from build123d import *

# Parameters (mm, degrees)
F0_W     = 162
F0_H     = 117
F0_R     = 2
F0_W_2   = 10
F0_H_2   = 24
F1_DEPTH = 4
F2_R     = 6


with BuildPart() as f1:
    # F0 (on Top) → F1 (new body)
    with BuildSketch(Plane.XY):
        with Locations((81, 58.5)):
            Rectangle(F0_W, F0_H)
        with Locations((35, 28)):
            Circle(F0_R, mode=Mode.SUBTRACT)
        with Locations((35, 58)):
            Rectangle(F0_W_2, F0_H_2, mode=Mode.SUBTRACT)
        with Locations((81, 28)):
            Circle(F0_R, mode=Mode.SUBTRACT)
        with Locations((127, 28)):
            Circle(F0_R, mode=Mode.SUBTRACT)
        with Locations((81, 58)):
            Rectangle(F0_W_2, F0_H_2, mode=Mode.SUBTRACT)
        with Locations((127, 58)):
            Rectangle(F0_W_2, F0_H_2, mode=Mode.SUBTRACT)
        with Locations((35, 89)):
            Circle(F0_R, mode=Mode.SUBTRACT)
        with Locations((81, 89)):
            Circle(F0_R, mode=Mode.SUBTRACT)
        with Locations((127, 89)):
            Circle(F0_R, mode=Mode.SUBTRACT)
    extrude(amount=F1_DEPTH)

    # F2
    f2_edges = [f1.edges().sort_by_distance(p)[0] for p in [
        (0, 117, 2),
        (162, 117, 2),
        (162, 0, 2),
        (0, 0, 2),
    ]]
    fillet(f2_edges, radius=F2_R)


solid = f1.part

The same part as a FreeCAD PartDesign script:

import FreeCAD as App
import Part
import Sketcher

V = App.Vector
Q = App.Units.Quantity


def edges_at(feature, points):
    """Names of the edges that pass closest to the given points."""
    edges = feature.Shape.Edges
    near = lambda p: min(range(len(edges)), key=lambda i: edges[i].distToShape(Part.Vertex(*p))[0])
    return sorted({f"Edge{near(p) + 1}" for p in points})

doc = App.newDocument("Part")
params = doc.addObject("Spreadsheet::Sheet", "Params")
for row, (alias, value) in enumerate([
    ("sketch1_diameter", "4 mm"),
    ("sketch1_width", "162 mm"),
    ("sketch1_width2", "10 mm"),
    ("sketch1_height", "117 mm"),
    ("sketch1_height2", "24 mm"),
    ("pad1_length", "4 mm"),
    ("fillet_radius", "6 mm"),
], start=1):
    params.set(f"A{row}", alias)
    params.set(f"B{row}", "=" + value)
    params.setAlias(f"B{row}", alias)

body = doc.addObject("PartDesign::Body", "Body")

# Sketch on XY plane
sketch1 = body.newObject("Sketcher::SketchObject", "Sketch")
sketch1.AttachmentSupport = (doc.getObject("XY_Plane"), [""])
sketch1.MapMode = "FlatFace"
sketch1.addGeometry(Part.LineSegment(V(0, 117, 0), V(0, 0, 0)), False)
sketch1.addGeometry(Part.LineSegment(V(0, 0, 0), V(162, 0, 0)), False)
sketch1.addGeometry(Part.LineSegment(V(162, 0, 0), V(162, 117, 0)), False)
sketch1.addGeometry(Part.LineSegment(V(162, 117, 0), V(0, 117, 0)), False)
sketch1.addGeometry(Part.Circle(V(35, 28, 0), V(0, 0, 1), 2), False)
sketch1.addGeometry(Part.LineSegment(V(40, 46, 0), V(30, 46, 0)), False)
sketch1.addGeometry(Part.LineSegment(V(30, 46, 0), V(30, 70, 0)), False)
sketch1.addGeometry(Part.LineSegment(V(30, 70, 0), V(40, 70, 0)), False)
sketch1.addGeometry(Part.LineSegment(V(40, 70, 0), V(40, 46, 0)), False)
sketch1.addGeometry(Part.Circle(V(81, 28, 0), V(0, 0, 1), 2), False)
sketch1.addGeometry(Part.Circle(V(127, 28, 0), V(0, 0, 1), 2), False)
sketch1.addGeometry(Part.LineSegment(V(86, 46, 0), V(76, 46, 0)), False)
sketch1.addGeometry(Part.LineSegment(V(76, 46, 0), V(76, 70, 0)), False)
sketch1.addGeometry(Part.LineSegment(V(76, 70, 0), V(86, 70, 0)), False)
sketch1.addGeometry(Part.LineSegment(V(86, 70, 0), V(86, 46, 0)), False)
sketch1.addGeometry(Part.LineSegment(V(132, 46, 0), V(122, 46, 0)), False)
sketch1.addGeometry(Part.LineSegment(V(122, 46, 0), V(122, 70, 0)), False)
sketch1.addGeometry(Part.LineSegment(V(122, 70, 0), V(132, 70, 0)), False)
sketch1.addGeometry(Part.LineSegment(V(132, 70, 0), V(132, 46, 0)), False)
sketch1.addGeometry(Part.Circle(V(35, 89, 0), V(0, 0, 1), 2), False)
sketch1.addGeometry(Part.Circle(V(81, 89, 0), V(0, 0, 1), 2), False)
sketch1.addGeometry(Part.Circle(V(127, 89, 0), V(0, 0, 1), 2), False)
sketch1.addConstraint(Sketcher.Constraint("Coincident", 0, 2, 1, 1))
sketch1.addConstraint(Sketcher.Constraint("Coincident", 1, 2, 2, 1))
sketch1.addConstraint(Sketcher.Constraint("Coincident", 2, 2, 3, 1))
sketch1.addConstraint(Sketcher.Constraint("Coincident", 3, 2, 0, 1))
sketch1.addConstraint(Sketcher.Constraint("Coincident", 5, 2, 6, 1))
sketch1.addConstraint(Sketcher.Constraint("Coincident", 6, 2, 7, 1))
sketch1.addConstraint(Sketcher.Constraint("Coincident", 7, 2, 8, 1))
sketch1.addConstraint(Sketcher.Constraint("Coincident", 8, 2, 5, 1))
sketch1.addConstraint(Sketcher.Constraint("Coincident", 11, 2, 12, 1))
sketch1.addConstraint(Sketcher.Constraint("Coincident", 12, 2, 13, 1))
sketch1.addConstraint(Sketcher.Constraint("Coincident", 13, 2, 14, 1))
sketch1.addConstraint(Sketcher.Constraint("Coincident", 14, 2, 11, 1))
sketch1.addConstraint(Sketcher.Constraint("Coincident", 15, 2, 16, 1))
sketch1.addConstraint(Sketcher.Constraint("Coincident", 16, 2, 17, 1))
sketch1.addConstraint(Sketcher.Constraint("Coincident", 17, 2, 18, 1))
sketch1.addConstraint(Sketcher.Constraint("Coincident", 18, 2, 15, 1))
sketch1.addConstraint(Sketcher.Constraint("Vertical", 0))
sketch1.addConstraint(Sketcher.Constraint("Horizontal", 1))
sketch1.addConstraint(Sketcher.Constraint("Vertical", 2))
sketch1.addConstraint(Sketcher.Constraint("Horizontal", 3))
sketch1.addConstraint(Sketcher.Constraint("Horizontal", 5))
sketch1.addConstraint(Sketcher.Constraint("Vertical", 6))
sketch1.addConstraint(Sketcher.Constraint("Horizontal", 7))
sketch1.addConstraint(Sketcher.Constraint("Vertical", 8))
sketch1.addConstraint(Sketcher.Constraint("Horizontal", 11))
sketch1.addConstraint(Sketcher.Constraint("Vertical", 12))
sketch1.addConstraint(Sketcher.Constraint("Horizontal", 13))
sketch1.addConstraint(Sketcher.Constraint("Vertical", 14))
sketch1.addConstraint(Sketcher.Constraint("Horizontal", 15))
sketch1.addConstraint(Sketcher.Constraint("Vertical", 16))
sketch1.addConstraint(Sketcher.Constraint("Horizontal", 17))
sketch1.addConstraint(Sketcher.Constraint("Vertical", 18))
sketch1.addConstraint(Sketcher.Constraint("Coincident", 0, 2, -1, 1))
sketch1.addConstraint(Sketcher.Constraint("Equal", 4, 9))
sketch1.addConstraint(Sketcher.Constraint("Equal", 9, 10))
sketch1.addConstraint(Sketcher.Constraint("Equal", 10, 19))
sketch1.addConstraint(Sketcher.Constraint("Equal", 19, 20))
sketch1.addConstraint(Sketcher.Constraint("Equal", 20, 21))
sketch1.addConstraint(Sketcher.Constraint("Horizontal", 4, 3, 9, 3))
sketch1.addConstraint(Sketcher.Constraint("Horizontal", 9, 3, 10, 3))
sketch1.addConstraint(Sketcher.Constraint("Horizontal", 19, 3, 20, 3))
sketch1.addConstraint(Sketcher.Constraint("Horizontal", 20, 3, 21, 3))
sketch1.addConstraint(Sketcher.Constraint("Horizontal", 8, 2, 11, 2))
sketch1.addConstraint(Sketcher.Constraint("Horizontal", 7, 2, 12, 2))
sketch1.addConstraint(Sketcher.Constraint("Horizontal", 14, 2, 15, 2))
sketch1.addConstraint(Sketcher.Constraint("Horizontal", 13, 2, 16, 2))
sketch1.addConstraint(Sketcher.Constraint("Vertical", 4, 3, 19, 3))
sketch1.addConstraint(Sketcher.Constraint("Vertical", 9, 3, 20, 3))
sketch1.addConstraint(Sketcher.Constraint("Vertical", 10, 3, 21, 3))
sketch1.addConstraint(Sketcher.Constraint("Equal", 7, 11))
sketch1.addConstraint(Sketcher.Constraint("Equal", 13, 15))
sketch1.addConstraint(Sketcher.Constraint("Diameter", 4, Q("4 mm")))
sketch1.addConstraint(Sketcher.Constraint("DistanceX", 1, 1, 1, 2, Q("162 mm")))
sketch1.addConstraint(Sketcher.Constraint("DistanceX", 5, 2, 5, 1, Q("10 mm")))
sketch1.addConstraint(Sketcher.Constraint("DistanceY", 0, 2, 0, 1, Q("117 mm")))
sketch1.addConstraint(Sketcher.Constraint("DistanceY", 6, 1, 6, 2, Q("24 mm")))
sketch1.addConstraint(Sketcher.Constraint("DistanceX", -1, 1, 4, 3, Q("35 mm")))
sketch1.addConstraint(Sketcher.Constraint("DistanceY", -1, 1, 4, 3, Q("28 mm")))
sketch1.addConstraint(Sketcher.Constraint("DistanceX", -1, 1, 9, 3, Q("81 mm")))
sketch1.addConstraint(Sketcher.Constraint("DistanceX", -1, 1, 10, 3, Q("127 mm")))
sketch1.addConstraint(Sketcher.Constraint("DistanceY", -1, 1, 19, 3, Q("89 mm")))
sketch1.addConstraint(Sketcher.Constraint("DistanceX", -1, 1, 5, 2, Q("30 mm")))
sketch1.addConstraint(Sketcher.Constraint("DistanceY", -1, 1, 5, 2, Q("46 mm")))
sketch1.addConstraint(Sketcher.Constraint("DistanceX", -1, 1, 11, 2, Q("76 mm")))
sketch1.addConstraint(Sketcher.Constraint("DistanceX", -1, 1, 15, 2, Q("122 mm")))
sketch1.setExpression("Constraints[51]", "Params.sketch1_diameter")
sketch1.setExpression("Constraints[52]", "Params.sketch1_width")
sketch1.setExpression("Constraints[53]", "Params.sketch1_width2")
sketch1.setExpression("Constraints[54]", "Params.sketch1_height")
sketch1.setExpression("Constraints[55]", "Params.sketch1_height2")
pad1 = body.newObject("PartDesign::Pad", "Pad")
pad1.Profile = sketch1
pad1.setExpression("Length", "Params.pad1_length")
doc.recompute()

fillet = body.newObject("PartDesign::Fillet", "Fillet")
fillet.Base = (pad1, edges_at(pad1, [
    (0, 117, 2),
    (162, 117, 2),
    (162, 0, 2),
    (0, 0, 2),
]))
fillet.setExpression("Radius", "Params.fillet_radius")

doc.recompute()
